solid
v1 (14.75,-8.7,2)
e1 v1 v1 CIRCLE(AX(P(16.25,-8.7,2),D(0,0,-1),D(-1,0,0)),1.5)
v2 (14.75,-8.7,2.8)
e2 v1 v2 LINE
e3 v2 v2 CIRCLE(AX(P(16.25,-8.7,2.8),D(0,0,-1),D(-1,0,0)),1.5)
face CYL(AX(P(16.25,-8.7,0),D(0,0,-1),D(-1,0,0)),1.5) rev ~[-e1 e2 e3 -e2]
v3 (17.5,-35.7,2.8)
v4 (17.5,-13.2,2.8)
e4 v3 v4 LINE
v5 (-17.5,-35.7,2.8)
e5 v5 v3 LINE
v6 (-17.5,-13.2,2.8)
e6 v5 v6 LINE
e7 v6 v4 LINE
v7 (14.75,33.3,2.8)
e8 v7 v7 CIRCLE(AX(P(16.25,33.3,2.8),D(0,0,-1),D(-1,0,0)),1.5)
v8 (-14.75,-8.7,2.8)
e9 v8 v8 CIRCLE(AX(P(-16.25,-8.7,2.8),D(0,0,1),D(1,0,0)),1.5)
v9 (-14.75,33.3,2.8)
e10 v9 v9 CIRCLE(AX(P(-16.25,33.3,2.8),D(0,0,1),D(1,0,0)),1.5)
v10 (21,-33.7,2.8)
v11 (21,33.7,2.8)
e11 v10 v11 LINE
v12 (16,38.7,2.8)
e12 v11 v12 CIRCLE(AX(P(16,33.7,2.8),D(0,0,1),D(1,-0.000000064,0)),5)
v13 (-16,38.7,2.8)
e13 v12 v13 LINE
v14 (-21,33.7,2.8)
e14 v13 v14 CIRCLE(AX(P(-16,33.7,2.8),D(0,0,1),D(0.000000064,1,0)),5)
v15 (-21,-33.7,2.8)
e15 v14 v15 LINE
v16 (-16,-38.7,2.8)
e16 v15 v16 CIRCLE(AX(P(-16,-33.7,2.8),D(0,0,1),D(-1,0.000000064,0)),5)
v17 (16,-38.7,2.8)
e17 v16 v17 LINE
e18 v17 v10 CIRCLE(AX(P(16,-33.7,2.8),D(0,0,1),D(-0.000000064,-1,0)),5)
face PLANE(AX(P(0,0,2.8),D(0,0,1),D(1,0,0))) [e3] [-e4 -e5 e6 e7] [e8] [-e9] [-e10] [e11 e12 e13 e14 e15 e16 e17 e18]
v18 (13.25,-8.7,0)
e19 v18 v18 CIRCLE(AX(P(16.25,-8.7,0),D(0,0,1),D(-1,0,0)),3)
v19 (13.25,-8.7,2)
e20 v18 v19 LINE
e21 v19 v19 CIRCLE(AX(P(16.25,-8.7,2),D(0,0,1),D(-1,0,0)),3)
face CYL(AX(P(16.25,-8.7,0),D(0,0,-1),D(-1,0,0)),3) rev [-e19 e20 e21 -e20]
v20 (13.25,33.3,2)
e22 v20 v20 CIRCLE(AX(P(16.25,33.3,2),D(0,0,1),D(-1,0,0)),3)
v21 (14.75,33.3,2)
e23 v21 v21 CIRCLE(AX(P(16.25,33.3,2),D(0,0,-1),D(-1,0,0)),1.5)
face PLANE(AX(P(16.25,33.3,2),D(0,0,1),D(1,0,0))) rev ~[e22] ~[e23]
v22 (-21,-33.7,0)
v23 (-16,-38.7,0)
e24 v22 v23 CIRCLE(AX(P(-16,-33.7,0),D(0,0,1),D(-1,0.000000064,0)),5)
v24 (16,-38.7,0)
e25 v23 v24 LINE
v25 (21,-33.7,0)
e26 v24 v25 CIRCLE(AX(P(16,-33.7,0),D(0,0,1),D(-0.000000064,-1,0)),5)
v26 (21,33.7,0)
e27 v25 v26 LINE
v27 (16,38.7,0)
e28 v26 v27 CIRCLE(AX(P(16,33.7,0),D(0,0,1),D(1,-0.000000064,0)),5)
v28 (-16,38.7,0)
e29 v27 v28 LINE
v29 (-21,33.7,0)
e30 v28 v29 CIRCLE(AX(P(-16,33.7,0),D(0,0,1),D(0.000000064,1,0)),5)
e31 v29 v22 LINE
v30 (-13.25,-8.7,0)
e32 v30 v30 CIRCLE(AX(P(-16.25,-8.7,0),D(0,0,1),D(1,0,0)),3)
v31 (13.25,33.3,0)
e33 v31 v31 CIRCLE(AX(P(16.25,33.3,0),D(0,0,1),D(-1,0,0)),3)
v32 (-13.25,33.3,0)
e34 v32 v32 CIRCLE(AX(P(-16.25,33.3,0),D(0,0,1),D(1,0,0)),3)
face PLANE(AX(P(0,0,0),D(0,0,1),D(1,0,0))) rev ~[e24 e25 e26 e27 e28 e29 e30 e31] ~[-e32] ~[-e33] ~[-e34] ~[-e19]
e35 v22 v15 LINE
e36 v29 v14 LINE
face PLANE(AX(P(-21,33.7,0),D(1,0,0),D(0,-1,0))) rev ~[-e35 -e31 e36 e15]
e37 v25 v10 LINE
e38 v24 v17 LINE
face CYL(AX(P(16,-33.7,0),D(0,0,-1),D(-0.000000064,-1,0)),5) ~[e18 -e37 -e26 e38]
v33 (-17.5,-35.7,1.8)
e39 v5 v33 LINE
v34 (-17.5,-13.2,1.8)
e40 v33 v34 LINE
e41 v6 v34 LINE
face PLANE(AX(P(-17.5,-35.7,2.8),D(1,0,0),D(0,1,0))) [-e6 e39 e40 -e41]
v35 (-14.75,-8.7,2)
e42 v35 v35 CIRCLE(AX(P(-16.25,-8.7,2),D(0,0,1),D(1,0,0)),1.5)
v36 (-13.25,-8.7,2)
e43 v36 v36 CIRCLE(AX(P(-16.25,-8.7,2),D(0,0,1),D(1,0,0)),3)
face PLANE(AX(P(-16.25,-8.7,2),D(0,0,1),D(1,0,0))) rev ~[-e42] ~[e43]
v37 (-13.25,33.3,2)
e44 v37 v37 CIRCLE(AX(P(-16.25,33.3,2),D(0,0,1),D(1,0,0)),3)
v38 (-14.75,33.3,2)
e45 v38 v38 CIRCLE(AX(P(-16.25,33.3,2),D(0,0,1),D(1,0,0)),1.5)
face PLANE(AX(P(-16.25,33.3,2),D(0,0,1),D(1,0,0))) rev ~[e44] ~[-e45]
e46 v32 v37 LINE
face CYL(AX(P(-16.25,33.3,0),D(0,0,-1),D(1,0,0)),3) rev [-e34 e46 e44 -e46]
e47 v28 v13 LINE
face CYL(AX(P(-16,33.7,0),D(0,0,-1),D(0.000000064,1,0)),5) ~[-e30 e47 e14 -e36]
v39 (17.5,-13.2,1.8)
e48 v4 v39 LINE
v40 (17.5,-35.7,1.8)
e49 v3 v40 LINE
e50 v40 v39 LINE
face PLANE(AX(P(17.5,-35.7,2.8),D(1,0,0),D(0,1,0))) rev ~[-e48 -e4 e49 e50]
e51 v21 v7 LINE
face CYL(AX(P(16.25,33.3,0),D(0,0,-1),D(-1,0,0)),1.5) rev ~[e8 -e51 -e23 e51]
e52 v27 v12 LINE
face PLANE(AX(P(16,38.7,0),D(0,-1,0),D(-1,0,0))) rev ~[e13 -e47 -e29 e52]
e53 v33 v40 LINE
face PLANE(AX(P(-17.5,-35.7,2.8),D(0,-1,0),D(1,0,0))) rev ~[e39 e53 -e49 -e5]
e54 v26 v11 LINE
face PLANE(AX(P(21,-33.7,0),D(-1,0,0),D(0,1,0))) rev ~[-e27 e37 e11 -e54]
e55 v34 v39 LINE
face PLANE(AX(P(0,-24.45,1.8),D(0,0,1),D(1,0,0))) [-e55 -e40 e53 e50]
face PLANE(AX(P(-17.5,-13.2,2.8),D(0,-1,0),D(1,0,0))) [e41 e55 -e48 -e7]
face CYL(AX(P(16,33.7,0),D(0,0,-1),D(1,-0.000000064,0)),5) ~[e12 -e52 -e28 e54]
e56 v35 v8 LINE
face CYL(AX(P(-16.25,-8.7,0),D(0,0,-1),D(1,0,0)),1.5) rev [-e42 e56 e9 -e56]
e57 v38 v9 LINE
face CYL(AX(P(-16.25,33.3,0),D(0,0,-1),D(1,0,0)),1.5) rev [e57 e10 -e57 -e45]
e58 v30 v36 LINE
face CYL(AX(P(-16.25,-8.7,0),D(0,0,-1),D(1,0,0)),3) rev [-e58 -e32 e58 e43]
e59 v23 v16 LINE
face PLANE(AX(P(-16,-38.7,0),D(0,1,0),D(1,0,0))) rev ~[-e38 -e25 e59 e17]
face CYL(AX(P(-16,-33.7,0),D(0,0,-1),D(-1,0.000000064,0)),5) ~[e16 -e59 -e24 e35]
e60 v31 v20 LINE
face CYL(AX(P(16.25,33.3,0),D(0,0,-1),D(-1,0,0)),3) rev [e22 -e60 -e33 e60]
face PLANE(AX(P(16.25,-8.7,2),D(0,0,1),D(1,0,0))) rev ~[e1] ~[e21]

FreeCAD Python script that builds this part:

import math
import FreeCAD as App
import Part
import Sketcher


def add_polygon(sketch, points):
    """Adds a closed chain of lines whose ends are joined by coincident constraints."""
    first, n = sketch.GeometryCount, len(points)
    for a, b in zip(points, points[1:] + points[:1]):
        sketch.addGeometry(Part.LineSegment(App.Vector(*a, 0), App.Vector(*b, 0)), False)
    for i in range(n):
        sketch.addConstraint(Sketcher.Constraint("Coincident", first + i, 2, first + (i + 1) % n, 1))

doc = App.newDocument("Part")
body = doc.addObject("PartDesign::Body", "Body")

# Sketch on XY plane
sketch1 = body.newObject("Sketcher::SketchObject", "Sketch")
sketch1.AttachmentSupport = (doc.getObject("XY_Plane"), [""])
sketch1.MapMode = "FlatFace"
sketch1.addGeometry([
    Part.LineSegment(App.Vector(16, 38.7, 0), App.Vector(-16, 38.7, 0)),  # 0
    Part.ArcOfCircle(Part.Circle(App.Vector(-16, 33.7, 0), App.Vector(0, 0, 1), 5), math.radians(90), math.radians(180)),  # 1
    Part.LineSegment(App.Vector(-21, 33.7, 0), App.Vector(-21, -33.7, 0)),  # 2
    Part.ArcOfCircle(Part.Circle(App.Vector(-16, -33.7, 0), App.Vector(0, 0, 1), 5), math.radians(180), math.radians(270)),  # 3
    Part.LineSegment(App.Vector(-16, -38.7, 0), App.Vector(16, -38.7, 0)),  # 4
    Part.ArcOfCircle(Part.Circle(App.Vector(16, -33.7, 0), App.Vector(0, 0, 1), 5), math.radians(-90), math.radians(0)),  # 5
    Part.LineSegment(App.Vector(21, -33.7, 0), App.Vector(21, 33.7, 0)),  # 6
    Part.ArcOfCircle(Part.Circle(App.Vector(16, 33.7, 0), App.Vector(0, 0, 1), 5), math.radians(0), math.radians(90)),  # 7
    Part.Circle(App.Vector(-16.2, -8.7, 0), App.Vector(0, 0, 1), 1.5),  # 8
    Part.Circle(App.Vector(16.2, -8.7, 0), App.Vector(0, 0, 1), 1.5),  # 9
    Part.Circle(App.Vector(-16.2, 33.3, 0), App.Vector(0, 0, 1), 1.5),  # 10
    Part.Circle(App.Vector(16.2, 33.3, 0), App.Vector(0, 0, 1), 1.5),  # 11
], False)
sketch1.addConstraint([
    Sketcher.Constraint("Tangent", 0, 2, 1, 1),
    Sketcher.Constraint("Tangent", 1, 2, 2, 1),
    Sketcher.Constraint("Tangent", 2, 2, 3, 1),
    Sketcher.Constraint("Tangent", 3, 2, 4, 1),
    Sketcher.Constraint("Tangent", 4, 2, 5, 1),
    Sketcher.Constraint("Tangent", 5, 2, 6, 1),
    Sketcher.Constraint("Tangent", 6, 2, 7, 1),
    Sketcher.Constraint("Tangent", 7, 2, 0, 1),
    Sketcher.Constraint("Horizontal", 0),
    Sketcher.Constraint("Vertical", 2),
    Sketcher.Constraint("Horizontal", 4),
    Sketcher.Constraint("Vertical", 6),
    Sketcher.Constraint("Equal", 1, 3),
    Sketcher.Constraint("Equal", 3, 5),
    Sketcher.Constraint("Equal", 5, 7),
    Sketcher.Constraint("Equal", 8, 9),
    Sketcher.Constraint("Equal", 9, 10),
    Sketcher.Constraint("Equal", 10, 11),
    Sketcher.Constraint("Symmetric", 1, 3, 5, 3, -1, 1),
    Sketcher.Constraint("Symmetric", 8, 3, 9, 3, -2),
    Sketcher.Constraint("Symmetric", 10, 3, 11, 3, -2),
    Sketcher.Constraint("Vertical", 8, 3, 10, 3),
    Sketcher.Constraint("Diameter", 8, 3.0),
    Sketcher.Constraint("Radius", 1, 5.0),
    Sketcher.Constraint("DistanceX", 0, 2, 0, 1, 32.0),
    Sketcher.Constraint("DistanceY", 2, 2, 2, 1, 67.4),
    Sketcher.Constraint("DistanceY", 3, 3, 8, 3, 25.0),
    Sketcher.Constraint("DistanceY", 8, 3, 10, 3, 42.0),
    Sketcher.Constraint("DistanceX", 8, 3, 9, 3, 32.5),
])
pad1 = body.newObject("PartDesign::Pad", "Pad")
pad1.Profile = sketch1
pad1.Length = 2.8

# Sketch on XY plane
sketch2 = body.newObject("Sketcher::SketchObject", "Sketch001")
sketch2.AttachmentSupport = (doc.getObject("XY_Plane"), [""])
sketch2.MapMode = "FlatFace"
sketch2.addGeometry([
    Part.Circle(App.Vector(16.2, 33.3, 0), App.Vector(0, 0, 1), 3),  # 0
    Part.Circle(App.Vector(16.2, 33.3, 0), App.Vector(0, 0, 1), 1.5),  # 1
    Part.Circle(App.Vector(-16.2, 33.3, 0), App.Vector(0, 0, 1), 3),  # 2
    Part.Circle(App.Vector(-16.2, 33.3, 0), App.Vector(0, 0, 1), 1.5),  # 3
    Part.Circle(App.Vector(16.2, -8.7, 0), App.Vector(0, 0, 1), 3),  # 4
    Part.Circle(App.Vector(16.2, -8.7, 0), App.Vector(0, 0, 1), 1.5),  # 5
    Part.Circle(App.Vector(-16.2, -8.7, 0), App.Vector(0, 0, 1), 3),  # 6
    Part.Circle(App.Vector(-16.2, -8.7, 0), App.Vector(0, 0, 1), 1.5),  # 7
], False)
sketch2.addConstraint([
    Sketcher.Constraint("Coincident", 1, 3, 0, 3),
    Sketcher.Constraint("Coincident", 3, 3, 2, 3),
    Sketcher.Constraint("Coincident", 5, 3, 4, 3),
    Sketcher.Constraint("Coincident", 7, 3, 6, 3),
    Sketcher.Constraint("Equal", 0, 2),
    Sketcher.Constraint("Equal", 1, 3),
    Sketcher.Constraint("Equal", 2, 4),
    Sketcher.Constraint("Equal", 3, 5),
    Sketcher.Constraint("Equal", 4, 6),
    Sketcher.Constraint("Equal", 5, 7),
    Sketcher.Constraint("Symmetric", 0, 3, 2, 3, -2),
    Sketcher.Constraint("Symmetric", 4, 3, 6, 3, -2),
    Sketcher.Constraint("Vertical", 1, 3, 4, 3),
    Sketcher.Constraint("Diameter", 0, 6.0),
    Sketcher.Constraint("Diameter", 1, 3.0),
    Sketcher.Constraint("DistanceY", 4, 3, 0, 3, 42.0),
    Sketcher.Constraint("DistanceY", -1, 1, 0, 3, 33.3),
    Sketcher.Constraint("DistanceX", 2, 3, 0, 3, 32.5),
])
pocket1 = body.newObject("PartDesign::Pocket", "Pocket")
pocket1.Profile = sketch2
pocket1.Length = 2
pocket1.Reversed = True

# Sketch on XY plane
sketch3 = body.newObject("Sketcher::SketchObject", "Sketch002")
sketch3.AttachmentSupport = (doc.getObject("XY_Plane"), [""])
sketch3.MapMode = "FlatFace"
sketch3.AttachmentOffset = App.Placement(App.Vector(0, 0, 2.8), App.Rotation())
add_polygon(sketch3, [(-18, -13), (-18, -36), (18, -36), (18, -13)])  # lines 0-3
sketch3.addConstraint([
    Sketcher.Constraint("Vertical", 0),
    Sketcher.Constraint("Horizontal", 1),
    Sketcher.Constraint("Vertical", 2),
    Sketcher.Constraint("Horizontal", 3),
    Sketcher.Constraint("DistanceX", 1, 1, 1, 2, 35.0),
    Sketcher.Constraint("DistanceY", 0, 2, 0, 1, 22.5),
    Sketcher.Constraint("DistanceX", 0, 2, -1, 1, 17.5),
    Sketcher.Constraint("DistanceY", 0, 2, -1, 1, 35.7),
])
pocket2 = body.newObject("PartDesign::Pocket", "Pocket001")
pocket2.Profile = sketch3
pocket2.Length = 1

doc.recompute()
